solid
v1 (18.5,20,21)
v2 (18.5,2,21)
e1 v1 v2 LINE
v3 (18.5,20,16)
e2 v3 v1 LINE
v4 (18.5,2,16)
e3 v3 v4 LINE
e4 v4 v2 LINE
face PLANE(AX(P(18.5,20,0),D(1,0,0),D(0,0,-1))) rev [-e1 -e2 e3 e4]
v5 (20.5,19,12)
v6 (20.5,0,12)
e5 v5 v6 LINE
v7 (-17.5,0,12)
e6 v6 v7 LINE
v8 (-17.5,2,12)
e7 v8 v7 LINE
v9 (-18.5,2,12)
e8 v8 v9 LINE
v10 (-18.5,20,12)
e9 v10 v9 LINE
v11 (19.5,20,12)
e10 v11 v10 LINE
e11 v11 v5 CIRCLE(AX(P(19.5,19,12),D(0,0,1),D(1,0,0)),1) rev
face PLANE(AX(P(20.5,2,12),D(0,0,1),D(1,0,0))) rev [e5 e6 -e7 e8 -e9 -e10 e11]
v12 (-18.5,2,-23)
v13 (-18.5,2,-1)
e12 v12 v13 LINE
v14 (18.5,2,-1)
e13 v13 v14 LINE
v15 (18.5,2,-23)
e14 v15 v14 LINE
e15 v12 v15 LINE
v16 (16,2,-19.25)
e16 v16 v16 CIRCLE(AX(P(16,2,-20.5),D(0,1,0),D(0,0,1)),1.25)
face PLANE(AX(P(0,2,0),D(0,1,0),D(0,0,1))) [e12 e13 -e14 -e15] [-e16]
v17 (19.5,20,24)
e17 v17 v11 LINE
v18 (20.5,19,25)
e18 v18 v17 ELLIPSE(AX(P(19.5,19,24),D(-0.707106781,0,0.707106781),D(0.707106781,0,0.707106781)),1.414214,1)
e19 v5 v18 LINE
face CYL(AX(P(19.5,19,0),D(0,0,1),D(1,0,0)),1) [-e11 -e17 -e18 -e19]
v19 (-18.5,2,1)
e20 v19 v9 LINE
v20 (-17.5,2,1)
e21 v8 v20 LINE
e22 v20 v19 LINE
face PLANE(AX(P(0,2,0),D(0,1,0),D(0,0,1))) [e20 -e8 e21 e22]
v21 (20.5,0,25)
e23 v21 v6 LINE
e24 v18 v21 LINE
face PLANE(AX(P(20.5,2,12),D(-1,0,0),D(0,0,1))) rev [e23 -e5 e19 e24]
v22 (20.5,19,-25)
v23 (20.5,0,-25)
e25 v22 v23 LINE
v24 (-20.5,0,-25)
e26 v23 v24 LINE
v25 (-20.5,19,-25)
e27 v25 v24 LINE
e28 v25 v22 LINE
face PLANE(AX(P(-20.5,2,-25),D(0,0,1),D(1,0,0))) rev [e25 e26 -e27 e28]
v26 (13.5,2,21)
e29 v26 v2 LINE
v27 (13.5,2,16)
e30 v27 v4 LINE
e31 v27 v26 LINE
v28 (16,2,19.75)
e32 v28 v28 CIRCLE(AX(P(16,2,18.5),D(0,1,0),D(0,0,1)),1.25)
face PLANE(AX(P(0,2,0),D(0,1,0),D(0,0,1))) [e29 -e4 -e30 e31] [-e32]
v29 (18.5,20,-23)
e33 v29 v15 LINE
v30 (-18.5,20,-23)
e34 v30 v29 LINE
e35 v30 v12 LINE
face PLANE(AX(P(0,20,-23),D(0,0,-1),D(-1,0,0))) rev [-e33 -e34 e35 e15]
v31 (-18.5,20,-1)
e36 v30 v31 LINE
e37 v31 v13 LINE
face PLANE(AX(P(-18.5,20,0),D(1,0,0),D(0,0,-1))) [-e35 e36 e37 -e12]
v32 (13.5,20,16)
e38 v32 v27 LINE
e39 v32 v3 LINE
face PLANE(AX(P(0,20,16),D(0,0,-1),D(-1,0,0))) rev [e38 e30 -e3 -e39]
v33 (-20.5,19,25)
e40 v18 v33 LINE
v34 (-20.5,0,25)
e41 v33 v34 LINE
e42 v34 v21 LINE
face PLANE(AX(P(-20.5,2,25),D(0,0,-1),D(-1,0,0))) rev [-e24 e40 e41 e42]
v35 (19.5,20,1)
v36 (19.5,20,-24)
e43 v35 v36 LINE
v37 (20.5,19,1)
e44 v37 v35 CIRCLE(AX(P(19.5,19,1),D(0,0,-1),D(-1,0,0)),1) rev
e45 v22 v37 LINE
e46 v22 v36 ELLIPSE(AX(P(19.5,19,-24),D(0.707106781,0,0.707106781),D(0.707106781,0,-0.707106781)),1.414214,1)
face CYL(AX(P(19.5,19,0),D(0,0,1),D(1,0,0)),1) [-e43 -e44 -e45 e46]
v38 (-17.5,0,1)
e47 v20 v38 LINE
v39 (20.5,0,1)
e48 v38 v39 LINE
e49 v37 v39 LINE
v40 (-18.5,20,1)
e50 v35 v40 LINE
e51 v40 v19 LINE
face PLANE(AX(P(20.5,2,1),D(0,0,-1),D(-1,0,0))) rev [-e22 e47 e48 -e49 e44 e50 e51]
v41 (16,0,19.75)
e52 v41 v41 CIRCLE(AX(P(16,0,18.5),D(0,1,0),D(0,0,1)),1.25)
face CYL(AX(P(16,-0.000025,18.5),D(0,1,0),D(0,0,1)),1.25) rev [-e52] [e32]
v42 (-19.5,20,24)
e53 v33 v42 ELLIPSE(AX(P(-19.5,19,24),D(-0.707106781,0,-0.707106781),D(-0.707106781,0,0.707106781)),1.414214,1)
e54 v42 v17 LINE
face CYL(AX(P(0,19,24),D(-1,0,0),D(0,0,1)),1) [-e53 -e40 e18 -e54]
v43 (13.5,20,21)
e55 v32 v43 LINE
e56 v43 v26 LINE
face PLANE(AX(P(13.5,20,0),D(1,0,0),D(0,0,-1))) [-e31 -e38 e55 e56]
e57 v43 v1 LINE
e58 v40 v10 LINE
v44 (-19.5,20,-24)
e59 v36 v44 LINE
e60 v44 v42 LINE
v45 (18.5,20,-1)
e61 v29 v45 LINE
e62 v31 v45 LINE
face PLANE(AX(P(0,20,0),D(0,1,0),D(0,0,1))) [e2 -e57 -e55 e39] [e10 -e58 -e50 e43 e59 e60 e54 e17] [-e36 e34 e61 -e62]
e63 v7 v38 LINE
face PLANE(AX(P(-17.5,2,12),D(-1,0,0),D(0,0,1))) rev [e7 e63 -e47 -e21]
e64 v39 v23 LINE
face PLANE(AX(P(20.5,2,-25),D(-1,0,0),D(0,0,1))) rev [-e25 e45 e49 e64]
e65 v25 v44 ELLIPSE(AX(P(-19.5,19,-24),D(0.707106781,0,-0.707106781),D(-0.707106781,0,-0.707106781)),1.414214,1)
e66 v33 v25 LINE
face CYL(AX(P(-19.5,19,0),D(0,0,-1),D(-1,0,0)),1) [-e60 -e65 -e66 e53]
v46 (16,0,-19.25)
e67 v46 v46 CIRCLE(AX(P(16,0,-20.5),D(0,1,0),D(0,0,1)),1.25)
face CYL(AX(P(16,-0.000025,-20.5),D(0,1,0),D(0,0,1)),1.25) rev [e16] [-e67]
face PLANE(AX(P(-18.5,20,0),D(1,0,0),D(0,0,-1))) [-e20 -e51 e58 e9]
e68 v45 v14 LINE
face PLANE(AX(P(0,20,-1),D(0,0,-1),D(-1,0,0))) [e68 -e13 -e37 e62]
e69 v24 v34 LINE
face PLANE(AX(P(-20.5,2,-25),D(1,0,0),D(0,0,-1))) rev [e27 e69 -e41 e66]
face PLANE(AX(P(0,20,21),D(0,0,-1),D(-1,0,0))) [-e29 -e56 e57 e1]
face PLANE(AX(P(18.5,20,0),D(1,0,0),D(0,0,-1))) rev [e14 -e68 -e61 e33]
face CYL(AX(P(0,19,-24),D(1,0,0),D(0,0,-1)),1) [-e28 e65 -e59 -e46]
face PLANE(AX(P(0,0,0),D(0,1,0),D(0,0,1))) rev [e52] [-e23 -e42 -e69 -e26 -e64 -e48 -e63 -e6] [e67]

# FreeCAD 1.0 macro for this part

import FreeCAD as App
import Part
import Sketcher

V = App.Vector
Q = App.Units.Quantity


def edges_at(feature, points):
    """Names of the edges that pass closest to the given points."""
    edges = feature.Shape.Edges
    near = lambda p: min(range(len(edges)), key=lambda i: edges[i].distToShape(Part.Vertex(*p))[0])
    return sorted({f"Edge{near(p) + 1}" for p in points})


def add_polygon(sketch, points):
    """Adds a closed chain of lines whose ends are joined by coincident constraints."""
    first, n = sketch.GeometryCount, len(points)
    for a, b in zip(points, points[1:] + points[:1]):
        sketch.addGeometry(Part.LineSegment(App.Vector(*a, 0), App.Vector(*b, 0)), False)
    for i in range(n):
        sketch.addConstraint(Sketcher.Constraint("Coincident", first + i, 2, first + (i + 1) % n, 1))

doc = App.newDocument("Part")
body = doc.addObject("PartDesign::Body", "Body")

sketch1 = body.newObject("Sketcher::SketchObject", "Sketch")
sketch1.AttachmentSupport = (doc.getObject("XZ_Plane"), [""])
sketch1.MapMode = "FlatFace"
add_polygon(sketch1, [(20.5, 1), (20.5, -25), (-20.5, -25), (-20.5, 25), (20.5, 25), (20.5, 12), (-17.5, 12), (-17.5, 1)])
sketch1.addConstraint([
    Sketcher.Constraint("Vertical", 0),
    Sketcher.Constraint("Horizontal", 1),
    Sketcher.Constraint("Vertical", 2),
    Sketcher.Constraint("Horizontal", 3),
    Sketcher.Constraint("Vertical", 4),
    Sketcher.Constraint("Horizontal", 5),
    Sketcher.Constraint("Vertical", 6),
    Sketcher.Constraint("Horizontal", 7),
    Sketcher.Constraint("Symmetric", 0, 2, 2, 2, -1, 1),
    Sketcher.Constraint("Vertical", 0, 2, 3, 2),
    Sketcher.Constraint("DistanceX", 1, 2, 1, 1, Q("41 mm")),
    Sketcher.Constraint("DistanceX", 5, 2, 5, 1, Q("38 mm")),
    Sketcher.Constraint("DistanceY", 0, 2, 0, 1, Q("26 mm")),
    Sketcher.Constraint("DistanceY", 2, 1, 2, 2, Q("50 mm")),
    Sketcher.Constraint("DistanceY", 4, 2, 4, 1, Q("13 mm")),
])
pad1 = body.newObject("PartDesign::Pad", "Pad")
pad1.Profile = sketch1
pad1.Length = 2
pad1.Reversed = True

sketch2 = body.newObject("Sketcher::SketchObject", "Sketch001")
sketch2.AttachmentSupport = (doc.getObject("XZ_Plane"), [""])
sketch2.MapMode = "FlatFace"
sketch2.AttachmentOffset = App.Placement(V(0, 0, -2), App.Rotation())
add_polygon(sketch2, [(20.5, -25), (-20.5, -25), (-20.5, 25), (20.5, 25), (20.5, 12), (-18.5, 12), (-18.5, 1), (20.5, 1)])
add_polygon(sketch2, [(18.5, 21), (13.5, 21), (13.5, 16), (18.5, 16)])
add_polygon(sketch2, [(18.5, -1), (-18.5, -1), (-18.5, -23), (18.5, -23)])
sketch2.addConstraint([
    Sketcher.Constraint("Horizontal", 0),
    Sketcher.Constraint("Vertical", 1),
    Sketcher.Constraint("Horizontal", 2),
    Sketcher.Constraint("Vertical", 3),
    Sketcher.Constraint("Horizontal", 4),
    Sketcher.Constraint("Vertical", 5),
    Sketcher.Constraint("Horizontal", 6),
    Sketcher.Constraint("Vertical", 7),
    Sketcher.Constraint("Horizontal", 8),
    Sketcher.Constraint("Vertical", 9),
    Sketcher.Constraint("Horizontal", 10),
    Sketcher.Constraint("Vertical", 11),
    Sketcher.Constraint("Horizontal", 12),
    Sketcher.Constraint("Vertical", 13),
    Sketcher.Constraint("Horizontal", 14),
    Sketcher.Constraint("Vertical", 15),
    Sketcher.Constraint("Symmetric", 0, 2, 2, 2, -1, 1),
    Sketcher.Constraint("Symmetric", 5, 2, 15, 2, -1, 1),
    Sketcher.Constraint("Vertical", 3, 2, 6, 2),
    Sketcher.Constraint("Vertical", 5, 2, 12, 2),
    Sketcher.Constraint("Vertical", 11, 2, 14, 2),
    Sketcher.Constraint("Equal", 10, 9),
    Sketcher.Constraint("DistanceX", 0, 2, 0, 1, Q("41 mm")),
    Sketcher.Constraint("DistanceX", 4, 2, 4, 1, Q("39 mm")),
    Sketcher.Constraint("DistanceX", 8, 2, 8, 1, Q("5 mm")),
    Sketcher.Constraint("DistanceY", 1, 1, 1, 2, Q("50 mm")),
    Sketcher.Constraint("DistanceY", 3, 2, 3, 1, Q("13 mm")),
    Sketcher.Constraint("DistanceY", 5, 2, 5, 1, Q("11 mm")),
    Sketcher.Constraint("DistanceY", 13, 2, 13, 1, Q("22 mm")),
    Sketcher.Constraint("DistanceY", -1, 1, 8, 2, Q("21 mm")),
])
pad2 = body.newObject("PartDesign::Pad", "Pad001")
pad2.Profile = sketch2
pad2.Length = 18
pad2.Reversed = True

sketch3 = body.newObject("Sketcher::SketchObject", "Sketch002")
sketch3.AttachmentSupport = (doc.getObject("XZ_Plane"), [""])
sketch3.MapMode = "FlatFace"
sketch3.AttachmentOffset = App.Placement(V(0, 0, -2), App.Rotation())
sketch3.addGeometry([
    Part.Circle(V(16, -20.5, 0), V(0, 0, 1), 1.25),
    Part.Circle(V(16, 18.5, 0), V(0, 0, 1), 1.25),
], False)
sketch3.addConstraint([
    Sketcher.Constraint("Equal", 0, 1),
    Sketcher.Constraint("Vertical", 0, 3, 1, 3),
    Sketcher.Constraint("Diameter", 0, Q("2.5 mm")),
    Sketcher.Constraint("DistanceX", -1, 1, 0, 3, Q("16 mm")),
    Sketcher.Constraint("DistanceY", 0, 3, 1, 3, Q("39 mm")),
    Sketcher.Constraint("DistanceY", 0, 3, -1, 1, Q("20.5 mm")),
])
pocket1 = body.newObject("PartDesign::Pocket", "Pocket")
pocket1.Profile = sketch3
pocket1.Type = "ThroughAll"
pocket1.Reversed = True
doc.recompute()

fillet = body.newObject("PartDesign::Fillet", "Fillet")
fillet.Base = (pocket1, edges_at(pocket1, [
    (20.5, 20, -12),
    (0, 20, -25),
    (-20.5, 20, 0),
    (0, 20, 25),
    (20.5, 20, 18.5),
]))
fillet.Radius = 1

doc.recompute()
